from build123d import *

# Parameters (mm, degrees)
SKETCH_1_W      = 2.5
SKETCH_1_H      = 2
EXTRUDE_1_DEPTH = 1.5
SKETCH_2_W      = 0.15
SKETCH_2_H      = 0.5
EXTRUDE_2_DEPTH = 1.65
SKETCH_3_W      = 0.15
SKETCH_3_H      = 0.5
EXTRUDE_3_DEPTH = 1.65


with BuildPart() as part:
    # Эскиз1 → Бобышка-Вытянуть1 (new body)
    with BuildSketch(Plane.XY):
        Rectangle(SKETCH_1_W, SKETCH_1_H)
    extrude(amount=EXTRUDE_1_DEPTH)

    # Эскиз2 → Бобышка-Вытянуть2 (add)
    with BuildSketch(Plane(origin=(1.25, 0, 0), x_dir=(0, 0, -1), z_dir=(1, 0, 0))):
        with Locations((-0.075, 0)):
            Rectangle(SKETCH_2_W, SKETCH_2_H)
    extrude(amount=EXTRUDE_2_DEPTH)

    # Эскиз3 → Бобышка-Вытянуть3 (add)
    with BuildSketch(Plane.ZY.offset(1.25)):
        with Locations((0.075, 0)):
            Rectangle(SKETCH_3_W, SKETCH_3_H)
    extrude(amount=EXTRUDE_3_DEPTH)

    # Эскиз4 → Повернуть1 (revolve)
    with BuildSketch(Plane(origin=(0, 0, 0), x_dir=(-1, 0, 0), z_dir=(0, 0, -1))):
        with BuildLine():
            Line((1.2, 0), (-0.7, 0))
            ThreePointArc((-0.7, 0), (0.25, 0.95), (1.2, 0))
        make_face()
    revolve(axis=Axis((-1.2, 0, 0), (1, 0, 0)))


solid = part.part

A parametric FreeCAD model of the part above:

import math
import FreeCAD as App
import Part
import Sketcher

doc = App.newDocument("Part")
body = doc.addObject("PartDesign::Body", "Body")

sketch1 = body.newObject("Sketcher::SketchObject", "Sketch")
sketch1.AttachmentSupport = (doc.getObject("XY_Plane"), [""])
sketch1.MapMode = "FlatFace"
sketch1.addGeometry([
    Part.LineSegment(App.Vector(-1.2, 1, 0), App.Vector(-1.2, -1, 0)),
    Part.LineSegment(App.Vector(-1.2, -1, 0), App.Vector(1.2, -1, 0)),
    Part.LineSegment(App.Vector(1.2, -1, 0), App.Vector(1.2, 1, 0)),
    Part.LineSegment(App.Vector(1.2, 1, 0), App.Vector(-1.2, 1, 0)),
], False)
sketch1.addConstraint([
    Sketcher.Constraint("Coincident", 0, 2, 1, 1),
    Sketcher.Constraint("Coincident", 1, 2, 2, 1),
    Sketcher.Constraint("Coincident", 2, 2, 3, 1),
    Sketcher.Constraint("Coincident", 3, 2, 0, 1),
    Sketcher.Constraint("Vertical", 0),
    Sketcher.Constraint("Horizontal", 1),
    Sketcher.Constraint("Vertical", 2),
    Sketcher.Constraint("Horizontal", 3),
    Sketcher.Constraint("Symmetric", 0, 2, 2, 2, -1, 1),
    Sketcher.Constraint("DistanceY", 0, 2, 0, 1, 2.0),
    Sketcher.Constraint("DistanceX", 1, 1, 1, 2, 2.5),
])
pad1 = body.newObject("PartDesign::Pad", "Pad")
pad1.Profile = sketch1
pad1.Length = 1.5

sketch2 = body.newObject("Sketcher::SketchObject", "Sketch001")
sketch2.AttachmentSupport = (doc.getObject("YZ_Plane"), [""])
sketch2.MapMode = "FlatFace"
sketch2.AttachmentOffset = App.Placement(App.Vector(0, 0, 1.25), App.Rotation())
sketch2.addGeometry([
    Part.LineSegment(App.Vector(0.25, 0.15, 0), App.Vector(-0.25, 0.15, 0)),
    Part.LineSegment(App.Vector(-0.25, 0.15, 0), App.Vector(-0.25, 0, 0)),
    Part.LineSegment(App.Vector(-0.25, 0, 0), App.Vector(0.25, 0, 0)),
    Part.LineSegment(App.Vector(0.25, 0, 0), App.Vector(0.25, 0.15, 0)),
], False)
sketch2.addConstraint([
    Sketcher.Constraint("Coincident", 0, 2, 1, 1),
    Sketcher.Constraint("Coincident", 1, 2, 2, 1),
    Sketcher.Constraint("Coincident", 2, 2, 3, 1),
    Sketcher.Constraint("Coincident", 3, 2, 0, 1),
    Sketcher.Constraint("Horizontal", 0),
    Sketcher.Constraint("Vertical", 1),
    Sketcher.Constraint("Horizontal", 2),
    Sketcher.Constraint("Vertical", 3),
    Sketcher.Constraint("Symmetric", 1, 2, 2, 2, -1, 1),
    Sketcher.Constraint("DistanceX", 0, 2, 0, 1, 0.5),
    Sketcher.Constraint("DistanceY", 1, 2, 1, 1, 0.15),
])
pad2 = body.newObject("PartDesign::Pad", "Pad001")
pad2.Profile = sketch2
pad2.Length = 1.65

sketch3 = body.newObject("Sketcher::SketchObject", "Sketch002")
sketch3.AttachmentSupport = (doc.getObject("YZ_Plane"), [""])
sketch3.MapMode = "FlatFace"
sketch3.AttachmentOffset = App.Placement(App.Vector(0, 0, -1.25), App.Rotation())
sketch3.addGeometry([
    Part.LineSegment(App.Vector(0.25, 0, 0), App.Vector(-0.25, 0, 0)),
    Part.LineSegment(App.Vector(-0.25, 0, 0), App.Vector(-0.25, 0.15, 0)),
    Part.LineSegment(App.Vector(-0.25, 0.15, 0), App.Vector(0.25, 0.15, 0)),
    Part.LineSegment(App.Vector(0.25, 0.15, 0), App.Vector(0.25, 0, 0)),
], False)
sketch3.addConstraint([
    Sketcher.Constraint("Coincident", 0, 2, 1, 1),
    Sketcher.Constraint("Coincident", 1, 2, 2, 1),
    Sketcher.Constraint("Coincident", 2, 2, 3, 1),
    Sketcher.Constraint("Coincident", 3, 2, 0, 1),
    Sketcher.Constraint("Horizontal", 0),
    Sketcher.Constraint("Vertical", 1),
    Sketcher.Constraint("Horizontal", 2),
    Sketcher.Constraint("Vertical", 3),
    Sketcher.Constraint("Symmetric", 0, 2, 3, 2, -1, 1),
    Sketcher.Constraint("DistanceX", 0, 2, 0, 1, 0.5),
    Sketcher.Constraint("DistanceY", 1, 1, 1, 2, 0.15),
])
pad3 = body.newObject("PartDesign::Pad", "Pad002")
pad3.Profile = sketch3
pad3.Length = 1.65
pad3.Reversed = True

sketch4 = body.newObject("Sketcher::SketchObject", "Sketch003")
sketch4.AttachmentSupport = (doc.getObject("XY_Plane"), [""])
sketch4.MapMode = "FlatFace"
sketch4.addGeometry([
    Part.LineSegment(App.Vector(0.7, 0, 0), App.Vector(-1.2, 0, 0)),
    Part.ArcOfCircle(Part.Circle(App.Vector(-0.2, 0, 0), App.Vector(0, 0, 1), 0.9), math.radians(0), math.radians(180)),
], False)
sketch4.addConstraint([
    Sketcher.Constraint("Coincident", 0, 1, 1, 1),
    Sketcher.Constraint("Coincident", 1, 2, 0, 2),
    Sketcher.Constraint("Horizontal", 0),
    Sketcher.Constraint("PointOnObject", 1, 3, -1),
    Sketcher.Constraint("PointOnObject", 0, 1, -1),
    Sketcher.Constraint("Radius", 1, 0.95),
    Sketcher.Constraint("DistanceX", -1, 1, 0, 1, 0.7),
])
revolution = body.newObject("PartDesign::Revolution", "Revolution")
revolution.Profile = sketch4
revolution.ReferenceAxis = (sketch4, ["H_Axis"])
revolution.Angle = 360

doc.recompute()
